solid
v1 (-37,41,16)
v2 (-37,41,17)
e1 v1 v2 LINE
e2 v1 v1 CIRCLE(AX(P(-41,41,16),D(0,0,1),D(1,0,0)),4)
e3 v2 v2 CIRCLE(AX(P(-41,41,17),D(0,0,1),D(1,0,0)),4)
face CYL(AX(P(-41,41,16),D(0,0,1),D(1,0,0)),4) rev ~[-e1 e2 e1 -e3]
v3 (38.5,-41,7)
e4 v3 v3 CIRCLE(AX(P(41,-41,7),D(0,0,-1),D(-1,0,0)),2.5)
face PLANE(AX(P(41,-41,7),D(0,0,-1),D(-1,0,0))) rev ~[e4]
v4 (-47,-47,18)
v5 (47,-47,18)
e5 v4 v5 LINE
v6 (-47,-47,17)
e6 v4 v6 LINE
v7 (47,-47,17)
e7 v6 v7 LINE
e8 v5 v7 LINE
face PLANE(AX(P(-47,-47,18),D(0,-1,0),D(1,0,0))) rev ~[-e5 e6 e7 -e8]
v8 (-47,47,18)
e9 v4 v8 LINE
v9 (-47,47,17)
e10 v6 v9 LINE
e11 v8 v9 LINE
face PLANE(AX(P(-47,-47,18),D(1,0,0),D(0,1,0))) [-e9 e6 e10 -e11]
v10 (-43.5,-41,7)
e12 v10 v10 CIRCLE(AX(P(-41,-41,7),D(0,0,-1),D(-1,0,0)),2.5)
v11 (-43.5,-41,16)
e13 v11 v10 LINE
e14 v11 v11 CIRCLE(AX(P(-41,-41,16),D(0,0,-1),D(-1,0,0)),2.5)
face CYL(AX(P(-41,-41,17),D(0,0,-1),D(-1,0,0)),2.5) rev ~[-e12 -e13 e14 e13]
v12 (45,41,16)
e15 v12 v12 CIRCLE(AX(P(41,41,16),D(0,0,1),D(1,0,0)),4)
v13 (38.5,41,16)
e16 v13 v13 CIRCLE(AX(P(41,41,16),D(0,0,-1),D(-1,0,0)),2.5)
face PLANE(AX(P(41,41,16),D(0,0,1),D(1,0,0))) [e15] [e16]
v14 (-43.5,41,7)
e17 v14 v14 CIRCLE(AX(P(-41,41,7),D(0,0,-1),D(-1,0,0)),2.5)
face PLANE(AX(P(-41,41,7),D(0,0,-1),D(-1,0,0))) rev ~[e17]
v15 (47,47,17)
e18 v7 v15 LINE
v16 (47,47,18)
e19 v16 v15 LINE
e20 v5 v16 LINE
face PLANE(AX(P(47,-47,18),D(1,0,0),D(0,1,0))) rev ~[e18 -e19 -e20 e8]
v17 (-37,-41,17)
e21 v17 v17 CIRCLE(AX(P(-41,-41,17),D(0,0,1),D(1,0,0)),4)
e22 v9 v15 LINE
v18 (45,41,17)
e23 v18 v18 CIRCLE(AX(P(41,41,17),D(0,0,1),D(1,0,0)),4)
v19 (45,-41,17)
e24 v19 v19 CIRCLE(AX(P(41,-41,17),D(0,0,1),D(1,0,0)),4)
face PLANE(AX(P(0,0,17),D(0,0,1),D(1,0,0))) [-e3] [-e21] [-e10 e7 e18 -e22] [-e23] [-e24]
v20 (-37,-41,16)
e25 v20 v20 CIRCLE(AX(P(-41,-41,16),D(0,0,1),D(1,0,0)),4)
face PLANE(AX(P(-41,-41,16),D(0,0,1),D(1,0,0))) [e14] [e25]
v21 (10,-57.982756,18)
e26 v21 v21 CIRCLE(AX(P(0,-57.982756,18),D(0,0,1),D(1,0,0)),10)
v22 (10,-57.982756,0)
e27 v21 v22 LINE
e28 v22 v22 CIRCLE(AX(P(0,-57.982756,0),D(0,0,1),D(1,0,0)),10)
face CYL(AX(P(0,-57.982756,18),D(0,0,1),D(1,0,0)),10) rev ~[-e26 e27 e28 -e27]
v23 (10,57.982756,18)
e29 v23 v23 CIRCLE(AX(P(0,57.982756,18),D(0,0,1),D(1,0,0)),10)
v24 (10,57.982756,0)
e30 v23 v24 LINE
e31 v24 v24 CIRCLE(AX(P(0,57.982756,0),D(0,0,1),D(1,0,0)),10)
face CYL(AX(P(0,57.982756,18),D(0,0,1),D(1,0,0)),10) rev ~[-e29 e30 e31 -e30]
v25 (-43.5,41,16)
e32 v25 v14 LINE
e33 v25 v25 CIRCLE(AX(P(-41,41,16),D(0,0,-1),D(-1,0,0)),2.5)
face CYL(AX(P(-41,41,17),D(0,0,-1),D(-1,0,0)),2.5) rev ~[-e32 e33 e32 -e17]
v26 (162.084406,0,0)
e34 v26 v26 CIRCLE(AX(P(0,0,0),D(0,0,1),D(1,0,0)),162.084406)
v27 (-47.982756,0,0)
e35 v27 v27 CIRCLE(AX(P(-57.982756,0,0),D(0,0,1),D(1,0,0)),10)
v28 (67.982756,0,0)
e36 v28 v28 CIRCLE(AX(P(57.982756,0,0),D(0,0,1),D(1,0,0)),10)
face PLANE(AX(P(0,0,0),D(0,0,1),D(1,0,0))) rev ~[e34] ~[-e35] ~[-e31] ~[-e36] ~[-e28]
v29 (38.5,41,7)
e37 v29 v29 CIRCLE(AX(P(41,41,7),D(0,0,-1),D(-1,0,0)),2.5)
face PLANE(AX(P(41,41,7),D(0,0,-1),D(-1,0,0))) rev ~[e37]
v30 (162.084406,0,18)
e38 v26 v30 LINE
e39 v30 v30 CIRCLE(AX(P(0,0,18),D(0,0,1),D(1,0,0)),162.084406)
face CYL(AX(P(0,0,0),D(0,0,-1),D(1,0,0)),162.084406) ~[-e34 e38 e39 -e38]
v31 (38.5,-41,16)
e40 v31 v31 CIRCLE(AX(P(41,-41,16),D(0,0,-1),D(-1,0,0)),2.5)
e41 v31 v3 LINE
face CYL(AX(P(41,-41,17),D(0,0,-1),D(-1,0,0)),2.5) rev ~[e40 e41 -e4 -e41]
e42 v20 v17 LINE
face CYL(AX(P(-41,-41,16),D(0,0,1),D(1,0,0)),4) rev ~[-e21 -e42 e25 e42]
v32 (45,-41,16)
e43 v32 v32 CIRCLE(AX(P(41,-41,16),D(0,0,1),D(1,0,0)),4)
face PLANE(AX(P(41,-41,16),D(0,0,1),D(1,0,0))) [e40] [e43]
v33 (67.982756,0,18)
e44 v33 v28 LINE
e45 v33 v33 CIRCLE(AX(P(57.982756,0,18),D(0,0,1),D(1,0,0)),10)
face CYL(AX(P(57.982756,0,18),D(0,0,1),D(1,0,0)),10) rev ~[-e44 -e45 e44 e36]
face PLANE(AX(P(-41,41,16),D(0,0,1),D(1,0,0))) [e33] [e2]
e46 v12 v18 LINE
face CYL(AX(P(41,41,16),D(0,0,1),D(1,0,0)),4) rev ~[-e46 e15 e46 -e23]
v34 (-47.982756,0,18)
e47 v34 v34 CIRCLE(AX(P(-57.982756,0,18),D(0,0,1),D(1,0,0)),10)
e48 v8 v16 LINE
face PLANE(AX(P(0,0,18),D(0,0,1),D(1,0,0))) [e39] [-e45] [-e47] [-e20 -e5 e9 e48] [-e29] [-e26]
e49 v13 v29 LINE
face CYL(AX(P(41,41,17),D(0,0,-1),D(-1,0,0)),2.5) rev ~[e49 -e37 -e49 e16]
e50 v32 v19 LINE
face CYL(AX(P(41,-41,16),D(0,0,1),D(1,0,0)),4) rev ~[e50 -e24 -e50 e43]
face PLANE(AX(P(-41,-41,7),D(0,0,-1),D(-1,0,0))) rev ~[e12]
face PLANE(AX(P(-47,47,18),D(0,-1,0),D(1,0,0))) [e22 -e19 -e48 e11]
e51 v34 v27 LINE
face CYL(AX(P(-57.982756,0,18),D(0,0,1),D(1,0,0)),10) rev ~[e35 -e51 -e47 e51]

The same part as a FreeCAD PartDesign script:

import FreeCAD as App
import Part
import Sketcher

V = App.Vector

doc = App.newDocument("Part")
body = doc.addObject("PartDesign::Body", "Body")

# Sketch on XY plane
sketch1 = body.newObject("Sketcher::SketchObject", "Sketch")
sketch1.AttachmentSupport = (doc.getObject("XY_Plane"), [""])
sketch1.MapMode = "FlatFace"
sketch1.addGeometry(Part.Circle(V(0, 0, 0), V(0, 0, 1), 162), False)
sketch1.addConstraint([
    Sketcher.Constraint("Coincident", 0, 3, -1, 1),
    Sketcher.Constraint("Diameter", 0, 324.168811),
])
pad1 = body.newObject("PartDesign::Pad", "Pad")
pad1.Profile = sketch1
pad1.Length = 18

# Sketch on XY plane
sketch2 = body.newObject("Sketcher::SketchObject", "Sketch001")
sketch2.AttachmentSupport = (doc.getObject("XY_Plane"), [""])
sketch2.MapMode = "FlatFace"
sketch2.AttachmentOffset = App.Placement(V(0, 0, 18), App.Rotation())
sketch2.addGeometry([
    Part.LineSegment(V(-47, 47, 0), V(-47, -47, 0)),
    Part.LineSegment(V(-47, -47, 0), V(47, -47, 0)),
    Part.LineSegment(V(47, -47, 0), V(47, 47, 0)),
    Part.LineSegment(V(47, 47, 0), V(-47, 47, 0)),
], False)
sketch2.addConstraint([
    Sketcher.Constraint("Coincident", 0, 2, 1, 1),
    Sketcher.Constraint("Coincident", 1, 2, 2, 1),
    Sketcher.Constraint("Coincident", 2, 2, 3, 1),
    Sketcher.Constraint("Coincident", 3, 2, 0, 1),
    Sketcher.Constraint("Vertical", 0),
    Sketcher.Constraint("Horizontal", 1),
    Sketcher.Constraint("Vertical", 2),
    Sketcher.Constraint("Horizontal", 3),
    Sketcher.Constraint("Symmetric", 0, 2, 2, 2, -1, 1),
    Sketcher.Constraint("Equal", 3, 0),
    Sketcher.Constraint("DistanceX", 1, 1, 1, 2, 94.0),
])
pocket1 = body.newObject("PartDesign::Pocket", "Pocket")
pocket1.Profile = sketch2
pocket1.Length = 1

# Sketch on XY plane
sketch3 = body.newObject("Sketcher::SketchObject", "Sketch002")
sketch3.AttachmentSupport = (doc.getObject("XY_Plane"), [""])
sketch3.MapMode = "FlatFace"
sketch3.AttachmentOffset = App.Placement(V(0, 0, 17), App.Rotation())
sketch3.addGeometry([
    Part.Circle(V(-41, 41, 0), V(0, 0, 1), 2.5),
    Part.Circle(V(41, 41, 0), V(0, 0, 1), 2.5),
    Part.Circle(V(-41, -41, 0), V(0, 0, 1), 2.5),
    Part.Circle(V(41, -41, 0), V(0, 0, 1), 2.5),
], False)
sketch3.addConstraint([
    Sketcher.Constraint("Equal", 0, 1),
    Sketcher.Constraint("Equal", 1, 2),
    Sketcher.Constraint("Equal", 2, 3),
    Sketcher.Constraint("Symmetric", 1, 3, 2, 3, -1, 1),
    Sketcher.Constraint("Symmetric", 0, 3, 3, 3, -1, 1),
    Sketcher.Constraint("Symmetric", 0, 3, 1, 3, -2),
    Sketcher.Constraint("Diameter", 0, 5.0),
    Sketcher.Constraint("DistanceX", 0, 3, -1, 1, 41.0),
    Sketcher.Constraint("DistanceY", -1, 1, 0, 3, 41.0),
])
doc.recompute()
hole = body.newObject("PartDesign::Hole", "Hole")
hole.Profile = sketch3
hole.ThreadType = "None"
hole.Diameter = 5
hole.DepthType = "Dimension"
hole.Depth = 10
hole.DrillPoint = "Flat"
hole.HoleCutType = "Counterbore"
hole.HoleCutDiameter = 8
hole.HoleCutDepth = 1

# Sketch on XY plane
sketch4 = body.newObject("Sketcher::SketchObject", "Sketch003")
sketch4.AttachmentSupport = (doc.getObject("XY_Plane"), [""])
sketch4.MapMode = "FlatFace"
sketch4.AttachmentOffset = App.Placement(V(0, 0, 18), App.Rotation())
sketch4.addGeometry([
    Part.Circle(V(-58, 0, 0), V(0, 0, 1), 10),
    Part.Circle(V(0, 58, 0), V(0, 0, 1), 10),
    Part.Circle(V(58, 0, 0), V(0, 0, 1), 10),
    Part.Circle(V(0, -58, 0), V(0, 0, 1), 10),
], False)
sketch4.addConstraint([
    Sketcher.Constraint("Equal", 0, 1),
    Sketcher.Constraint("Equal", 1, 2),
    Sketcher.Constraint("Equal", 2, 3),
    Sketcher.Constraint("Symmetric", 0, 3, 2, 3, -1, 1),
    Sketcher.Constraint("Symmetric", 1, 3, 3, 3, -1, 1),
    Sketcher.Constraint("PointOnObject", 0, 3, -1),
    Sketcher.Constraint("PointOnObject", 1, 3, -2),
    Sketcher.Constraint("Diameter", 0, 20.0),
    Sketcher.Constraint("DistanceX", 0, 3, -1, 1, 57.982756),
    Sketcher.Constraint("DistanceY", -1, 1, 1, 3, 57.982756),
])
pocket2 = body.newObject("PartDesign::Pocket", "Pocket001")
pocket2.Profile = sketch4
pocket2.Type = "ThroughAll"
body2 = doc.addObject("PartDesign::Body", "Body001")
doc.recompute()

body.Placement = App.Placement(V(0, 0, -24), App.Rotation(V(0, 0, 1), 0))
boolean = body2.newObject("PartDesign::Boolean", "Boolean")
boolean.Type = "Fuse"
boolean.addObjects([body])
body3 = doc.addObject("PartDesign::Body", "Body002")
doc.recompute()

body2.Placement = App.Placement(V(0, 0, 24), App.Rotation(V(0, 0, 1), 0))
boolean2 = body3.newObject("PartDesign::Boolean", "Boolean001")
boolean2.Type = "Fuse"
boolean2.addObjects([body2])

doc.recompute()
